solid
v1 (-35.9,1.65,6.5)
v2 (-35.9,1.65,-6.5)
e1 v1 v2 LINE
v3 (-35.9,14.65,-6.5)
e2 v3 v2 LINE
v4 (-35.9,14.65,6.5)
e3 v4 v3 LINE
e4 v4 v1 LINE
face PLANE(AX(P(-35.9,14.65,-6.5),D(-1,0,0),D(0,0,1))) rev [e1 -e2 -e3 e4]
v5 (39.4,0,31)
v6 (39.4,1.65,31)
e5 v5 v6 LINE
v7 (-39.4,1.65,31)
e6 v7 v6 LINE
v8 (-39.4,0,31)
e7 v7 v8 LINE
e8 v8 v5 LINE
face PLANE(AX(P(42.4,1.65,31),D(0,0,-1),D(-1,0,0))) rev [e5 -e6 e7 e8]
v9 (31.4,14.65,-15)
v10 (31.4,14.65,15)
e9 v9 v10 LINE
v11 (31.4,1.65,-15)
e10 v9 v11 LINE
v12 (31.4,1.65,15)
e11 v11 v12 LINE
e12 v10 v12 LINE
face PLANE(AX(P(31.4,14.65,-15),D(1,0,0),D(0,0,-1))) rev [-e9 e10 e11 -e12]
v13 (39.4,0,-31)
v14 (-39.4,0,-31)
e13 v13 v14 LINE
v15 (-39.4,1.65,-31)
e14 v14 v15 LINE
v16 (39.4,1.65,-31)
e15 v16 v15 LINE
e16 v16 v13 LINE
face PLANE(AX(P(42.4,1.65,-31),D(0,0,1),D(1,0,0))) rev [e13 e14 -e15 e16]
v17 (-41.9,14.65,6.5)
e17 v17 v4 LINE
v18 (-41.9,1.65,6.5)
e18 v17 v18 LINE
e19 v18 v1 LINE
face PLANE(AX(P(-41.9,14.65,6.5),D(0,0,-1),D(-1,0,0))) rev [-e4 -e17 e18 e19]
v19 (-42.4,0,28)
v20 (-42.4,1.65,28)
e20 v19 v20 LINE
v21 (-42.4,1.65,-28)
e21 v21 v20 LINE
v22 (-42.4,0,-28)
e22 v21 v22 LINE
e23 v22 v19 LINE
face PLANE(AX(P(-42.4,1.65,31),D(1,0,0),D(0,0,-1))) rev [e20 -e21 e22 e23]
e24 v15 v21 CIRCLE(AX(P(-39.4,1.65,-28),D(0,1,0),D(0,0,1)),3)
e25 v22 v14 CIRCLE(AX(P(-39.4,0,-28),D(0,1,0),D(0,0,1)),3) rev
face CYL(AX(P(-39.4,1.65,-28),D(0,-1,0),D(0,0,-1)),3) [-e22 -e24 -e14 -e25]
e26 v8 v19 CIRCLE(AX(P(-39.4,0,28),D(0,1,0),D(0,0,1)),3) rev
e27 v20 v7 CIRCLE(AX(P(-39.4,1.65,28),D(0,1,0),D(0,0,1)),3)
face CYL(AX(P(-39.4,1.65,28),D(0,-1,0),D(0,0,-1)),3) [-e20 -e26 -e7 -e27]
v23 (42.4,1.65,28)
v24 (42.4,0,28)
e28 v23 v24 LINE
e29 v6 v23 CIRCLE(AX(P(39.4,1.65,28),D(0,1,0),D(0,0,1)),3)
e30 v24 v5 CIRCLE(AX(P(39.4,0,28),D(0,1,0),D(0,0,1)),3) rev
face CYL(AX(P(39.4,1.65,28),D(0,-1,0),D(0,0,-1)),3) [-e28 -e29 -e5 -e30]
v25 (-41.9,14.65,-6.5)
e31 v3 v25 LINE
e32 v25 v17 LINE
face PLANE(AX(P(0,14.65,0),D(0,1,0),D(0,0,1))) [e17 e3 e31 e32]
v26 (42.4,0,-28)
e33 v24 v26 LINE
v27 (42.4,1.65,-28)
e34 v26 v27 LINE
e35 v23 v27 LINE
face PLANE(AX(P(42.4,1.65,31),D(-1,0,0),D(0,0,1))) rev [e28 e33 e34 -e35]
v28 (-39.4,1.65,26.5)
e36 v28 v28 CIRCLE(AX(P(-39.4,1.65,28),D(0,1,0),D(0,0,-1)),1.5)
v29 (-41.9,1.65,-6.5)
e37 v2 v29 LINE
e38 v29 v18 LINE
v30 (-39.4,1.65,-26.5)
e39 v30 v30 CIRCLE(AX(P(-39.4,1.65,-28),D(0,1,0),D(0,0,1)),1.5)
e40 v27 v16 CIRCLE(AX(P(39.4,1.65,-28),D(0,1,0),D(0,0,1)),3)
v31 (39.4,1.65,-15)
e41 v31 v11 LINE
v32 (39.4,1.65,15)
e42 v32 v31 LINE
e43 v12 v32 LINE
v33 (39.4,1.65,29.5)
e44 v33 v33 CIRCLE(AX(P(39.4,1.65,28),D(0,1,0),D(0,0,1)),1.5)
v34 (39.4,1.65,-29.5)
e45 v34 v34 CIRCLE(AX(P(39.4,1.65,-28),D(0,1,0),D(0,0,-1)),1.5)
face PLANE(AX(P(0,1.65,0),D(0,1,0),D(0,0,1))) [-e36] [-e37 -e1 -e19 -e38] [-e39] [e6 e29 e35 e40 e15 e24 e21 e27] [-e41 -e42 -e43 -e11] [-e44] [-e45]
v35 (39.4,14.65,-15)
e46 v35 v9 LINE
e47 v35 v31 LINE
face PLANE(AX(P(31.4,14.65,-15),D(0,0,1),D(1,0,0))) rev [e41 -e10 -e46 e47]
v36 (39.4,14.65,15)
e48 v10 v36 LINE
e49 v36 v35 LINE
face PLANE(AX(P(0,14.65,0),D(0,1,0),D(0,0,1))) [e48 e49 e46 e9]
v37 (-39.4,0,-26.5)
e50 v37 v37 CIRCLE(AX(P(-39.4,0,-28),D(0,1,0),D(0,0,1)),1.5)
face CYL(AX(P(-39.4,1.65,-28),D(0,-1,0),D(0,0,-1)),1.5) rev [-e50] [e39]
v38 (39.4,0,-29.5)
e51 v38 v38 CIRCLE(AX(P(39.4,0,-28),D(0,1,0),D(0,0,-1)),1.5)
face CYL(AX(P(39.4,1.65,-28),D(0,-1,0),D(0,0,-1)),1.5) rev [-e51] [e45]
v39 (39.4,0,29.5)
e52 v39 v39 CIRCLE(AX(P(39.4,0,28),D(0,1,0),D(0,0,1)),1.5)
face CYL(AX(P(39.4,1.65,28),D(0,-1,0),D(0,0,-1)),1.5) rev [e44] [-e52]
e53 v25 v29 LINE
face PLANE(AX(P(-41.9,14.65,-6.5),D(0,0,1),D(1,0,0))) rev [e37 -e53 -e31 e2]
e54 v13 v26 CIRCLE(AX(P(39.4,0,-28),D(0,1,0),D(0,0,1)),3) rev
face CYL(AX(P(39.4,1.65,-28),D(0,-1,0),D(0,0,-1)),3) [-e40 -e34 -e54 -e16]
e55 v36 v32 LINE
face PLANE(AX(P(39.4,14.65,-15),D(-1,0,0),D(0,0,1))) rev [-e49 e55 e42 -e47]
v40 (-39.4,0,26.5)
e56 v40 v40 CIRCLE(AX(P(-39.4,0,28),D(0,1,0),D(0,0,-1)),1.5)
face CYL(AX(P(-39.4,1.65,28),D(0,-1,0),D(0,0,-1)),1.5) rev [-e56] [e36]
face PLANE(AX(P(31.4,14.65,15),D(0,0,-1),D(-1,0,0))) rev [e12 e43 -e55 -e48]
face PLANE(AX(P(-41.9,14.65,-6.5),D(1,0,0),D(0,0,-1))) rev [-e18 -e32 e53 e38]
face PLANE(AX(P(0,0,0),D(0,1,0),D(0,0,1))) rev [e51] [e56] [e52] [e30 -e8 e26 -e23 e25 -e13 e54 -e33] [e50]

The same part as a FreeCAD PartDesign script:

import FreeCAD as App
import Part
import Sketcher
from FreeCAD import Vector
Q = App.Units.Quantity


def edges_at(feature, points):
    """Names of the edges that pass closest to the given points."""
    edges = feature.Shape.Edges
    near = lambda p: min(range(len(edges)), key=lambda i: edges[i].distToShape(Part.Vertex(*p))[0])
    return sorted({f"Edge{near(p) + 1}" for p in points})

doc = App.newDocument("Part")
body = doc.addObject("PartDesign::Body", "Body")

sketch1 = body.newObject("Sketcher::SketchObject", "Sketch")
sketch1.AttachmentSupport = (doc.getObject("XZ_Plane"), [""])
sketch1.MapMode = "FlatFace"
sketch1.addGeometry([
    Part.LineSegment(Vector(-42.4, -31, 0), Vector(-42.4, 31, 0)),
    Part.LineSegment(Vector(-42.4, 31, 0), Vector(42.4, 31, 0)),
    Part.LineSegment(Vector(42.4, 31, 0), Vector(42.4, -31, 0)),
    Part.LineSegment(Vector(42.4, -31, 0), Vector(-42.4, -31, 0)),
    Part.Circle(Vector(-39.4, 28, 0), Vector(0, 0, 1), 1.5),
    Part.Circle(Vector(39.4, 28, 0), Vector(0, 0, 1), 1.5),
    Part.Circle(Vector(-39.4, -28, 0), Vector(0, 0, 1), 1.5),
    Part.Circle(Vector(39.4, -28, 0), Vector(0, 0, 1), 1.5),
], False)
sketch1.addConstraint([
    Sketcher.Constraint("Coincident", 0, 2, 1, 1),
    Sketcher.Constraint("Coincident", 1, 2, 2, 1),
    Sketcher.Constraint("Coincident", 2, 2, 3, 1),
    Sketcher.Constraint("Coincident", 3, 2, 0, 1),
    Sketcher.Constraint("Vertical", 0),
    Sketcher.Constraint("Horizontal", 1),
    Sketcher.Constraint("Vertical", 2),
    Sketcher.Constraint("Horizontal", 3),
    Sketcher.Constraint("Equal", 4, 5),
    Sketcher.Constraint("Equal", 5, 6),
    Sketcher.Constraint("Equal", 6, 7),
    Sketcher.Constraint("Symmetric", 5, 3, 6, 3, -1, 1),
    Sketcher.Constraint("Symmetric", 4, 3, 7, 3, -1, 1),
    Sketcher.Constraint("Symmetric", 0, 2, 2, 2, -1, 1),
    Sketcher.Constraint("Symmetric", 4, 3, 5, 3, -2),
    Sketcher.Constraint("Diameter", 4, Q("3 mm")),
    Sketcher.Constraint("DistanceY", 0, 1, 0, 2, Q("62 mm")),
    Sketcher.Constraint("DistanceX", 1, 1, 1, 2, Q("84.8 mm")),
    Sketcher.Constraint("DistanceY", -1, 1, 4, 3, Q("28 mm")),
    Sketcher.Constraint("DistanceX", 0, 2, 4, 3, Q("3 mm")),
])
pad1 = body.newObject("PartDesign::Pad", "Pad")
pad1.Profile = sketch1
pad1.Length = 1.65
pad1.Reversed = True
doc.recompute()

fillet = body.newObject("PartDesign::Fillet", "Fillet")
fillet.Base = (pad1, edges_at(pad1, [
    (-42.4, 0.825, -31),
    (42.4, 0.825, -31),
    (42.4, 0.825, 31),
    (-42.4, 0.825, 31),
]))
fillet.Radius = 3

sketch2 = body.newObject("Sketcher::SketchObject", "Sketch001")
sketch2.AttachmentSupport = (doc.getObject("XZ_Plane"), [""])
sketch2.MapMode = "FlatFace"
sketch2.AttachmentOffset = App.Placement(Vector(0, 0, -1.65), App.Rotation())
sketch2.addGeometry([
    Part.LineSegment(Vector(-41.9, -6.5, 0), Vector(-41.9, 6.5, 0)),
    Part.LineSegment(Vector(-41.9, 6.5, 0), Vector(-35.9, 6.5, 0)),
    Part.LineSegment(Vector(-35.9, 6.5, 0), Vector(-35.9, -6.5, 0)),
    Part.LineSegment(Vector(-35.9, -6.5, 0), Vector(-41.9, -6.5, 0)),
    Part.LineSegment(Vector(31.4, -15, 0), Vector(31.4, 15, 0)),
    Part.LineSegment(Vector(31.4, 15, 0), Vector(39.4, 15, 0)),
    Part.LineSegment(Vector(39.4, 15, 0), Vector(39.4, -15, 0)),
    Part.LineSegment(Vector(39.4, -15, 0), Vector(31.4, -15, 0)),
], False)
sketch2.addConstraint([
    Sketcher.Constraint("Coincident", 0, 2, 1, 1),
    Sketcher.Constraint("Coincident", 1, 2, 2, 1),
    Sketcher.Constraint("Coincident", 2, 2, 3, 1),
    Sketcher.Constraint("Coincident", 3, 2, 0, 1),
    Sketcher.Constraint("Coincident", 4, 2, 5, 1),
    Sketcher.Constraint("Coincident", 5, 2, 6, 1),
    Sketcher.Constraint("Coincident", 6, 2, 7, 1),
    Sketcher.Constraint("Coincident", 7, 2, 4, 1),
    Sketcher.Constraint("Vertical", 0),
    Sketcher.Constraint("Horizontal", 1),
    Sketcher.Constraint("Vertical", 2),
    Sketcher.Constraint("Horizontal", 3),
    Sketcher.Constraint("Vertical", 4),
    Sketcher.Constraint("Horizontal", 5),
    Sketcher.Constraint("Vertical", 6),
    Sketcher.Constraint("Horizontal", 7),
    Sketcher.Constraint("DistanceX", 1, 1, 1, 2, Q("6 mm")),
    Sketcher.Constraint("DistanceX", 5, 1, 5, 2, Q("8 mm")),
    Sketcher.Constraint("DistanceY", 0, 1, 0, 2, Q("13 mm")),
    Sketcher.Constraint("DistanceY", 4, 1, 4, 2, Q("30 mm")),
    Sketcher.Constraint("DistanceY", -1, 1, 4, 2, Q("15 mm")),
    Sketcher.Constraint("DistanceX", 0, 2, -1, 1, Q("41.9 mm")),
    Sketcher.Constraint("DistanceY", -1, 1, 0, 2, Q("6.5 mm")),
    Sketcher.Constraint("DistanceX", -1, 1, 4, 2, Q("31.4 mm")),
])
pad2 = body.newObject("PartDesign::Pad", "Pad001")
pad2.Profile = sketch2
pad2.Length = 13
pad2.Reversed = True

doc.recompute()
